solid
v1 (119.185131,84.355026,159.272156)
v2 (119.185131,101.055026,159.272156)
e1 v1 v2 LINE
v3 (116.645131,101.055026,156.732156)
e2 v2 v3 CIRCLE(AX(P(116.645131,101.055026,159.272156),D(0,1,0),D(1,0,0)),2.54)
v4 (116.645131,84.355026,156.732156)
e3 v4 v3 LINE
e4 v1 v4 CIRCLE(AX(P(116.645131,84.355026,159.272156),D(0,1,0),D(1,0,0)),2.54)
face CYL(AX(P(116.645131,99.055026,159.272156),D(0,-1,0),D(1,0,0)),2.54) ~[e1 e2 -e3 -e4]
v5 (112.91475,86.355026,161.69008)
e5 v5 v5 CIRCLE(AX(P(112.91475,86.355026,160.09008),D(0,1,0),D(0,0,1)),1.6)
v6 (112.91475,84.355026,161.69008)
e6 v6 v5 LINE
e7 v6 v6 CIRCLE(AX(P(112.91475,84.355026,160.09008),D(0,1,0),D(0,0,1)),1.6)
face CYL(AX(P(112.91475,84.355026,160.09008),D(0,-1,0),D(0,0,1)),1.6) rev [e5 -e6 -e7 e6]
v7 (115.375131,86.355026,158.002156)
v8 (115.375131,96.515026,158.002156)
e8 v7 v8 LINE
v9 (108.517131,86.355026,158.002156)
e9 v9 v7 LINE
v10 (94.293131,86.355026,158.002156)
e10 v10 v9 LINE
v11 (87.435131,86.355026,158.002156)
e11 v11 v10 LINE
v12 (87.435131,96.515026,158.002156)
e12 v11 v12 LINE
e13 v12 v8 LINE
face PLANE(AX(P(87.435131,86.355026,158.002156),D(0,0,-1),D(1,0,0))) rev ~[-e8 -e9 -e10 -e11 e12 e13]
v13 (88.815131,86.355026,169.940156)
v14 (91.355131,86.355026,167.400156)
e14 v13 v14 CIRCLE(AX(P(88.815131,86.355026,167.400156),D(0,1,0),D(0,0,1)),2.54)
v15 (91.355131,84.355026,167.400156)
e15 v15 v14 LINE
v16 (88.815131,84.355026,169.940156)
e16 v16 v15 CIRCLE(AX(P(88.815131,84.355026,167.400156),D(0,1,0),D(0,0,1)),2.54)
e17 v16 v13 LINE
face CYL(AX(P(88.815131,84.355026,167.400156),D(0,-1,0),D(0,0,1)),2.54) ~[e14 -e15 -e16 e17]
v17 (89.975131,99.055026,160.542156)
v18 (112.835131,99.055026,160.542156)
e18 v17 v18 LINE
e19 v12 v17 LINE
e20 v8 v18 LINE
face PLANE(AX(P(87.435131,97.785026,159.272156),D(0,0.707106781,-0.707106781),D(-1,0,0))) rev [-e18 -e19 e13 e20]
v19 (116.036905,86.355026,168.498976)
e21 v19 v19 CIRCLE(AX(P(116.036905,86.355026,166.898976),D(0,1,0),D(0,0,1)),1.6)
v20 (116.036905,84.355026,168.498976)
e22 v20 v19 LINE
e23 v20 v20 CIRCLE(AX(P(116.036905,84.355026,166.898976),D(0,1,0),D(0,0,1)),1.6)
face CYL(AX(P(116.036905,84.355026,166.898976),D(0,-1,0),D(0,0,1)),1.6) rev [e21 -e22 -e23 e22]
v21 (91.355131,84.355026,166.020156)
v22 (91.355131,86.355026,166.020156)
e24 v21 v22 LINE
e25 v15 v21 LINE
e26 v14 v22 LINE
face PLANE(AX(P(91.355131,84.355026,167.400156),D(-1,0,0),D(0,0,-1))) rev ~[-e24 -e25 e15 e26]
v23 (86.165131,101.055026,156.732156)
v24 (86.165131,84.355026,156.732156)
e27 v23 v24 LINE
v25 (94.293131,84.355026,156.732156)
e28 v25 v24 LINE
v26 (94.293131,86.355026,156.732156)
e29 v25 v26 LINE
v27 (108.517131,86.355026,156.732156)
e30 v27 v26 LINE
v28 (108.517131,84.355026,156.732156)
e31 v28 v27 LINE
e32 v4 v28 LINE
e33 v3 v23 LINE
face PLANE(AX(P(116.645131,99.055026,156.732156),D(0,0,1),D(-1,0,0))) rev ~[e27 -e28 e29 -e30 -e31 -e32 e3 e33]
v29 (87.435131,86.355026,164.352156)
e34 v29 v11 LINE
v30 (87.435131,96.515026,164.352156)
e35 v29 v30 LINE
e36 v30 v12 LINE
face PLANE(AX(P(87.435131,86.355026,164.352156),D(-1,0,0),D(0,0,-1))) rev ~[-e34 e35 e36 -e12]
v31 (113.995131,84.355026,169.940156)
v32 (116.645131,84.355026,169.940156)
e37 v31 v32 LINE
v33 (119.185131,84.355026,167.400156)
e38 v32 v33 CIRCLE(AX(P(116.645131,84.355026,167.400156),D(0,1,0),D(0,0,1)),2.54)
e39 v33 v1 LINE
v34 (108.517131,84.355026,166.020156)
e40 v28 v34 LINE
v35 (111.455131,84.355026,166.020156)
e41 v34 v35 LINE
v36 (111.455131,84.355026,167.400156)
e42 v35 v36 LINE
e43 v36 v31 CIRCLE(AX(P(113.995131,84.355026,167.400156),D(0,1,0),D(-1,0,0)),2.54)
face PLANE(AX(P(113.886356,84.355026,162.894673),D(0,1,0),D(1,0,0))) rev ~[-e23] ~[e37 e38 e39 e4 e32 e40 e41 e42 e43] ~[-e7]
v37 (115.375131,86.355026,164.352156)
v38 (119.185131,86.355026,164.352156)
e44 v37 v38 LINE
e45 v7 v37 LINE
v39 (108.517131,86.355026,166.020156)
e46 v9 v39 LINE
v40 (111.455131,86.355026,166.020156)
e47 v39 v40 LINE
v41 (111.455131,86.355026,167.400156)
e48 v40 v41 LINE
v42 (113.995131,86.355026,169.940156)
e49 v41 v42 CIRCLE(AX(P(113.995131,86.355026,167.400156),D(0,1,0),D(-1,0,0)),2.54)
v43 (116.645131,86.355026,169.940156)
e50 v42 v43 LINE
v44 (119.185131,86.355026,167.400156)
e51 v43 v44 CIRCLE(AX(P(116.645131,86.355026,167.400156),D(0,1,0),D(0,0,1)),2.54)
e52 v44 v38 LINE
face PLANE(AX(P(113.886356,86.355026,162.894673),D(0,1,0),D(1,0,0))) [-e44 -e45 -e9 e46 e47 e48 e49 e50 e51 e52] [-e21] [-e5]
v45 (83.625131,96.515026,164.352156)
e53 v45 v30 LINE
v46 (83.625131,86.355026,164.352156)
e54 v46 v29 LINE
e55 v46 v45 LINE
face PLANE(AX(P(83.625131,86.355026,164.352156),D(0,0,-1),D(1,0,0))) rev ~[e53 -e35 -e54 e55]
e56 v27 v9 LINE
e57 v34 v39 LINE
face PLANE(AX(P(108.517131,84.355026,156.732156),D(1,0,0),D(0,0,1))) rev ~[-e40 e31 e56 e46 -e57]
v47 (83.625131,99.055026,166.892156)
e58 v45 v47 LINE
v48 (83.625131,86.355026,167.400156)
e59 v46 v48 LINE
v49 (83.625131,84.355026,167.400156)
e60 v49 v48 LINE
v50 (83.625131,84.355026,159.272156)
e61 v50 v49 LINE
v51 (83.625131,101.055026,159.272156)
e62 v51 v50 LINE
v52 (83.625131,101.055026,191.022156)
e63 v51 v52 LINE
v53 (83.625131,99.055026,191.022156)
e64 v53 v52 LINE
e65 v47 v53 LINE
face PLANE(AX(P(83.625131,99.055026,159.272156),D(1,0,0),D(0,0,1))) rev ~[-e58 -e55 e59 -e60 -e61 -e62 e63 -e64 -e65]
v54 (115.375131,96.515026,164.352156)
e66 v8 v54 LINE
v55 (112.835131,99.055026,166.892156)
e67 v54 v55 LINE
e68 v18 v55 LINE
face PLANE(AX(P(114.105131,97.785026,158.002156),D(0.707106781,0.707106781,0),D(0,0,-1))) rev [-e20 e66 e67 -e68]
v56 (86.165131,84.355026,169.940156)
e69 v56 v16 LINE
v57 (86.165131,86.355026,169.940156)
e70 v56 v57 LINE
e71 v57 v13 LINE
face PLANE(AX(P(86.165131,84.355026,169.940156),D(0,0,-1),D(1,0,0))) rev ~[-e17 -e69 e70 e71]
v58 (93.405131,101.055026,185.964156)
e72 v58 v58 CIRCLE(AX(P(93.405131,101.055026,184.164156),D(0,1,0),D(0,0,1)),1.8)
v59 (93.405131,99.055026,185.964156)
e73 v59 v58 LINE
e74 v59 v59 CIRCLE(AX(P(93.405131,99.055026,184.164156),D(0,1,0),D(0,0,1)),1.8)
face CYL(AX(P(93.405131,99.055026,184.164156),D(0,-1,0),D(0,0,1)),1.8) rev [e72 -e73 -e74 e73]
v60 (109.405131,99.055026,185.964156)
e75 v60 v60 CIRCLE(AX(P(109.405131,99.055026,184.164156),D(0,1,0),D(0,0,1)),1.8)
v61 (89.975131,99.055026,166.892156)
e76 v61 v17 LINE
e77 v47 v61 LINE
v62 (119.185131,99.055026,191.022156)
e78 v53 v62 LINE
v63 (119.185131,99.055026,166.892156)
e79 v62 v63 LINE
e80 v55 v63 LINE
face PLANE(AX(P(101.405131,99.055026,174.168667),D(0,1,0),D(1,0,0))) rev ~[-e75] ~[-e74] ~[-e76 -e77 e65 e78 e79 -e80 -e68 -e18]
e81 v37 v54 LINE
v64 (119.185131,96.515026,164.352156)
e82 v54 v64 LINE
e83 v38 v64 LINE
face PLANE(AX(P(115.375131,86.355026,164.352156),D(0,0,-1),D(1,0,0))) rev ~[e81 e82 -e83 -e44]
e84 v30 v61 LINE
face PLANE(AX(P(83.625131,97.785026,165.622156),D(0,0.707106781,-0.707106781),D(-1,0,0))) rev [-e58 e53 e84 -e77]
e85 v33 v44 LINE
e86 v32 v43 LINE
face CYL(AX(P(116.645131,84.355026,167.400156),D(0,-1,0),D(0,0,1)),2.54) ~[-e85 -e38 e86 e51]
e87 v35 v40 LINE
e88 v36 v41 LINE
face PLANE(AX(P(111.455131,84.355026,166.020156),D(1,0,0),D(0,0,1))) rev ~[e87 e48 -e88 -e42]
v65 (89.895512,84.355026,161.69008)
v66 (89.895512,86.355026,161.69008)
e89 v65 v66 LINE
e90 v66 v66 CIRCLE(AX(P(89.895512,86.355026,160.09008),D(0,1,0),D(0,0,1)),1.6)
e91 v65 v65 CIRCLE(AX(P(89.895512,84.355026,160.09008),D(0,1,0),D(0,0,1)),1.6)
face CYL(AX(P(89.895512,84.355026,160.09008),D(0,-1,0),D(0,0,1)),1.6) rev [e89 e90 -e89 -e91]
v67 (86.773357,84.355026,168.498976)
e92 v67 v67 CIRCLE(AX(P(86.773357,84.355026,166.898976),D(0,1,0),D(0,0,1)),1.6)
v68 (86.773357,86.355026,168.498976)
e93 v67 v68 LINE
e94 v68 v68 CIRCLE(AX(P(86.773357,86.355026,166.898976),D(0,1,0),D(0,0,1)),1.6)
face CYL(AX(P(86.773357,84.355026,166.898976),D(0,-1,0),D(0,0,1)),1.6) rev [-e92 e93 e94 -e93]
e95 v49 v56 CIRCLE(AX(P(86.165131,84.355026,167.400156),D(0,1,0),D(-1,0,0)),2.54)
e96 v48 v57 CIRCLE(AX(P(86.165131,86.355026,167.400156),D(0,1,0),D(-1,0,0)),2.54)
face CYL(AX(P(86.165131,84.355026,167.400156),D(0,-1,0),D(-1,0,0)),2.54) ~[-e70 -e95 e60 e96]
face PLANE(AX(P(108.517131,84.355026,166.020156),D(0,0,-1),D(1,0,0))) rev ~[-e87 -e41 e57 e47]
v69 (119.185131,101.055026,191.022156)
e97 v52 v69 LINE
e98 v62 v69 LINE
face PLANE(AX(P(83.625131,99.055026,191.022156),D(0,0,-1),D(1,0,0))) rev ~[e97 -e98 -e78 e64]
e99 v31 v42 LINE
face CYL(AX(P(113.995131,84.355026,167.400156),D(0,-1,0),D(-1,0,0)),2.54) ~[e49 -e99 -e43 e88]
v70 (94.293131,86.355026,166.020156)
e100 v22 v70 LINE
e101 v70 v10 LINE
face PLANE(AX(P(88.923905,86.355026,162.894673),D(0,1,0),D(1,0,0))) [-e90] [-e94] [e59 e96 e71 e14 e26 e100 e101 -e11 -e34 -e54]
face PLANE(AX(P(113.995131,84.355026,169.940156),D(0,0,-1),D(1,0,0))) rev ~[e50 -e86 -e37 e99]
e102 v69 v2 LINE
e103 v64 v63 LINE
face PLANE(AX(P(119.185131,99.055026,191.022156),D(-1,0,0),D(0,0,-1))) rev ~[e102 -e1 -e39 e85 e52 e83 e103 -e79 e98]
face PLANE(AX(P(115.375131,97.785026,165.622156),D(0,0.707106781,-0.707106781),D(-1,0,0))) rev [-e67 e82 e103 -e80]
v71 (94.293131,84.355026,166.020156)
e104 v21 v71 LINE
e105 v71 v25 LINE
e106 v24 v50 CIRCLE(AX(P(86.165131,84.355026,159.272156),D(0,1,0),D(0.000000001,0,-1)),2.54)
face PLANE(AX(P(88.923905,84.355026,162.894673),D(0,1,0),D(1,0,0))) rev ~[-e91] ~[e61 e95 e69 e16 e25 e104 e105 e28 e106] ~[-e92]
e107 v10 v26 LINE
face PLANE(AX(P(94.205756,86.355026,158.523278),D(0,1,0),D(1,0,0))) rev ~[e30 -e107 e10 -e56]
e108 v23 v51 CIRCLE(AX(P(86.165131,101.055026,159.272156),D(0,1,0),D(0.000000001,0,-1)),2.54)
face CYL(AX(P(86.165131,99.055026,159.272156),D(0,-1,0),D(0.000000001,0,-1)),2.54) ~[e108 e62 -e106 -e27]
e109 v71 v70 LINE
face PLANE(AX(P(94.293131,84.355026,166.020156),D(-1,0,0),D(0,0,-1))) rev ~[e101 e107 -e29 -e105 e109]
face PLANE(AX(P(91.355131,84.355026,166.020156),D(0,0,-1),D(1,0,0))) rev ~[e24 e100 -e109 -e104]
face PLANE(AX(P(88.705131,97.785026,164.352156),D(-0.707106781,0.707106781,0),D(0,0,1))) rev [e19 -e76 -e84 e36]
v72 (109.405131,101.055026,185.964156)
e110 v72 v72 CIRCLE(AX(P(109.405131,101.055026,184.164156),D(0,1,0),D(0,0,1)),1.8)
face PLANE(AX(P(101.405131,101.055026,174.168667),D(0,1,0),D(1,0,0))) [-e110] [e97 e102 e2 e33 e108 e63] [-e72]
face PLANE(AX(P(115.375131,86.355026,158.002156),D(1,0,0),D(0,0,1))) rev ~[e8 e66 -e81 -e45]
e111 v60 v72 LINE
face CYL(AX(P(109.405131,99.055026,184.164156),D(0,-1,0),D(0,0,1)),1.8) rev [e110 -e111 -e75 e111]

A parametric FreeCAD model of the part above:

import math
import FreeCAD as App
import Part
import Sketcher
Q = App.Units.Quantity


def edges_at(feature, points):
    """Names of the edges that pass closest to the given points."""
    edges = feature.Shape.Edges
    near = lambda p: min(range(len(edges)), key=lambda i: edges[i].distToShape(Part.Vertex(*p))[0])
    return sorted({f"Edge{near(p) + 1}" for p in points})

doc = App.newDocument("Part")
body = doc.addObject("PartDesign::Body", "Body")

# Sketch on XZ plane
sketch1 = doc.addObject("Sketcher::SketchObject", "Sketch")
body.addObject(sketch1)
sketch1.AttachmentSupport = (doc.XZ_Plane, [""])
sketch1.MapMode = "FlatFace"
sketch1.AttachmentOffset = App.Placement(App.Vector(0, 0, -84.355026), App.Rotation())
sketch1.addGeometry([
    Part.LineSegment(App.Vector(86.165131, 169.940156, 0), App.Vector(88.815131, 169.940156, 0)),  # 0
    Part.ArcOfCircle(Part.Circle(App.Vector(88.815131, 167.400156, 0), App.Vector(0, 0, 1), 2.54), math.radians(0), math.radians(90)),  # 1
    Part.LineSegment(App.Vector(91.355131, 167.400156, 0), App.Vector(91.355131, 166.020156, 0)),  # 2
    Part.LineSegment(App.Vector(91.355131, 166.020156, 0), App.Vector(94.293131, 166.020156, 0)),  # 3
    Part.LineSegment(App.Vector(94.293131, 166.020156, 0), App.Vector(94.293131, 156.732156, 0)),  # 4
    Part.LineSegment(App.Vector(94.293131, 156.732156, 0), App.Vector(86.165131, 156.732156, 0)),  # 5
    Part.ArcOfCircle(Part.Circle(App.Vector(86.165131, 159.272156, 0), App.Vector(0, 0, 1), 2.54), math.radians(180), math.radians(270)),  # 6
    Part.LineSegment(App.Vector(83.625131, 159.272156, 0), App.Vector(83.625131, 167.400156, 0)),  # 7
    Part.ArcOfCircle(Part.Circle(App.Vector(86.165131, 167.400156, 0), App.Vector(0, 0, 1), 2.54), math.radians(90), math.radians(180)),  # 8
    Part.Circle(App.Vector(86.773357, 166.898976, 0), App.Vector(0, 0, 1), 1.6),  # 9
    Part.Circle(App.Vector(89.895512, 160.09008, 0), App.Vector(0, 0, 1), 1.6),  # 10
], False)
sketch1.addConstraint([
    Sketcher.Constraint("Tangent", 0, 2, 1, 2),
    Sketcher.Constraint("Tangent", 1, 1, 2, 1),
    Sketcher.Constraint("Coincident", 2, 2, 3, 1),
    Sketcher.Constraint("Coincident", 3, 2, 4, 1),
    Sketcher.Constraint("Coincident", 4, 2, 5, 1),
    Sketcher.Constraint("Tangent", 5, 2, 6, 2),
    Sketcher.Constraint("Tangent", 6, 1, 7, 1),
    Sketcher.Constraint("Tangent", 7, 2, 8, 2),
    Sketcher.Constraint("Tangent", 8, 1, 0, 1),
    Sketcher.Constraint("Horizontal", 0),
    Sketcher.Constraint("Vertical", 2),
    Sketcher.Constraint("Horizontal", 3),
    Sketcher.Constraint("Vertical", 4),
    Sketcher.Constraint("Horizontal", 5),
    Sketcher.Constraint("Vertical", 7),
    Sketcher.Constraint("Equal", 1, 6),
    Sketcher.Constraint("Equal", 6, 8),
    Sketcher.Constraint("Equal", 9, 10),
    Sketcher.Constraint("Equal", 5, 7),
    Sketcher.Constraint("Radius", 1, Q("0.1 in")),
    Sketcher.Constraint("DistanceX", 5, 2, 5, 1, Q("0.32 in")),
    Sketcher.Constraint("Diameter", 9, 3.2),
    Sketcher.Constraint("DistanceX", 0, 1, 0, 2, 2.65),
    Sketcher.Constraint("DistanceY", 2, 2, 2, 1, 1.38),
    Sketcher.Constraint("DistanceX", -1, 1, 1, 3, 88.815131),
    Sketcher.Constraint("DistanceX", -1, 1, 10, 3, 89.895512),
    Sketcher.Constraint("DistanceY", -1, 1, 10, 3, 160.09008),
    Sketcher.Constraint("DistanceY", 9, 3, 8, 3, 0.50118),
    Sketcher.Constraint("DistanceY", -1, 1, 1, 3, 167.400156),
    Sketcher.Constraint("DistanceX", -1, 1, 9, 3, 86.773357),
])
pad1 = doc.addObject("PartDesign::Pad", "Pad")
body.addObject(pad1)
pad1.Profile = sketch1
pad1.Length = 2
pad1.Reversed = True
body2 = doc.addObject("PartDesign::Body", "Body001")

# Sketch on XZ plane
sketch2 = doc.addObject("Sketcher::SketchObject", "Sketch001")
body2.addObject(sketch2)
sketch2.AttachmentSupport = (doc.getObject("XZ_Plane001"), [""])
sketch2.MapMode = "FlatFace"
sketch2.AttachmentOffset = App.Placement(App.Vector(0, 0, -84.355026), App.Rotation())
sketch2.addGeometry([
    Part.LineSegment(App.Vector(113.995131, 169.940156, 0), App.Vector(116.645131, 169.940156, 0)),  # 0
    Part.ArcOfCircle(Part.Circle(App.Vector(116.645131, 167.400156, 0), App.Vector(0, 0, 1), 2.54), math.radians(0), math.radians(90)),  # 1
    Part.LineSegment(App.Vector(119.185131, 167.400156, 0), App.Vector(119.185131, 159.272156, 0)),  # 2
    Part.ArcOfCircle(Part.Circle(App.Vector(116.645131, 159.272156, 0), App.Vector(0, 0, 1), 2.54), math.radians(-90), math.radians(0)),  # 3
    Part.LineSegment(App.Vector(116.645131, 156.732156, 0), App.Vector(108.517131, 156.732156, 0)),  # 4
    Part.LineSegment(App.Vector(108.517131, 156.732156, 0), App.Vector(108.517131, 166.020156, 0)),  # 5
    Part.LineSegment(App.Vector(108.517131, 166.020156, 0), App.Vector(111.455131, 166.020156, 0)),  # 6
    Part.LineSegment(App.Vector(111.455131, 166.020156, 0), App.Vector(111.455131, 167.400156, 0)),  # 7
    Part.ArcOfCircle(Part.Circle(App.Vector(113.995131, 167.400156, 0), App.Vector(0, 0, 1), 2.54), math.radians(90), math.radians(180)),  # 8
    Part.Circle(App.Vector(116.036905, 166.898976, 0), App.Vector(0, 0, 1), 1.6),  # 9
    Part.Circle(App.Vector(112.91475, 160.09008, 0), App.Vector(0, 0, 1), 1.6),  # 10
], False)
sketch2.addConstraint([
    Sketcher.Constraint("Tangent", 0, 2, 1, 2),
    Sketcher.Constraint("Tangent", 1, 1, 2, 1),
    Sketcher.Constraint("Tangent", 2, 2, 3, 2),
    Sketcher.Constraint("Tangent", 3, 1, 4, 1),
    Sketcher.Constraint("Coincident", 4, 2, 5, 1),
    Sketcher.Constraint("Coincident", 5, 2, 6, 1),
    Sketcher.Constraint("Coincident", 6, 2, 7, 1),
    Sketcher.Constraint("Tangent", 7, 2, 8, 2),
    Sketcher.Constraint("Tangent", 8, 1, 0, 1),
    Sketcher.Constraint("Horizontal", 0),
    Sketcher.Constraint("Vertical", 2),
    Sketcher.Constraint("Horizontal", 4),
    Sketcher.Constraint("Vertical", 5),
    Sketcher.Constraint("Horizontal", 6),
    Sketcher.Constraint("Vertical", 7),
    Sketcher.Constraint("Equal", 1, 3),
    Sketcher.Constraint("Equal", 3, 8),
    Sketcher.Constraint("Equal", 9, 10),
    Sketcher.Constraint("Equal", 4, 2),
    Sketcher.Constraint("Radius", 1, Q("0.1 in")),
    Sketcher.Constraint("DistanceX", 4, 2, 4, 1, Q("0.32 in")),
    Sketcher.Constraint("Diameter", 9, 3.2),
    Sketcher.Constraint("DistanceX", 0, 1, 0, 2, 2.65),
    Sketcher.Constraint("DistanceY", 5, 1, 5, 2, 9.288),
    Sketcher.Constraint("DistanceX", -1, 1, 1, 3, 116.645131),
    Sketcher.Constraint("DistanceX", -1, 1, 10, 3, 112.91475),
    Sketcher.Constraint("DistanceY", -1, 1, 10, 3, 160.09008),
    Sketcher.Constraint("DistanceY", 9, 3, 1, 3, 0.50118),
    Sketcher.Constraint("DistanceY", -1, 1, 1, 3, 167.400156),
    Sketcher.Constraint("DistanceX", -1, 1, 9, 3, 116.036905),
])
pad2 = doc.addObject("PartDesign::Pad", "Pad001")
body2.addObject(pad2)
pad2.Profile = sketch2
pad2.Length = 2
pad2.Reversed = True
body.AllowCompound = True
doc.recompute()

boolean = doc.addObject("PartDesign::Boolean", "Boolean")
body.addObject(boolean)
boolean.Type = "Fuse"
boolean.addObjects([body2])

# Sketch on XZ plane
sketch3 = doc.addObject("Sketcher::SketchObject", "Sketch002")
body.addObject(sketch3)
sketch3.AttachmentSupport = (doc.XZ_Plane, [""])
sketch3.MapMode = "FlatFace"
sketch3.AttachmentOffset = App.Placement(App.Vector(0, 0, -86.355026), App.Rotation())
sketch3.addGeometry([
    Part.ArcOfCircle(Part.Circle(App.Vector(86.165131, 159.272156, 0), App.Vector(0, 0, 1), 2.54), math.radians(180), math.radians(270)),  # 0
    Part.LineSegment(App.Vector(83.625131, 159.272156, 0), App.Vector(83.625131, 164.352156, 0)),  # 1
    Part.LineSegment(App.Vector(83.625131, 164.352156, 0), App.Vector(87.435131, 164.352156, 0)),  # 2
    Part.LineSegment(App.Vector(87.435131, 164.352156, 0), App.Vector(87.435131, 158.002156, 0)),  # 3
    Part.LineSegment(App.Vector(87.435131, 158.002156, 0), App.Vector(115.375131, 158.002156, 0)),  # 4
    Part.LineSegment(App.Vector(115.375131, 158.002156, 0), App.Vector(115.375131, 164.352156, 0)),  # 5
    Part.LineSegment(App.Vector(115.375131, 164.352156, 0), App.Vector(119.185131, 164.352156, 0)),  # 6
    Part.LineSegment(App.Vector(119.185131, 164.352156, 0), App.Vector(119.185131, 159.272156, 0)),  # 7
    Part.ArcOfCircle(Part.Circle(App.Vector(116.645131, 159.272156, 0), App.Vector(0, 0, 1), 2.54), math.radians(-90), math.radians(0)),  # 8
    Part.LineSegment(App.Vector(116.645131, 156.732156, 0), App.Vector(86.165131, 156.732156, 0)),  # 9
], False)
sketch3.addConstraint([
    Sketcher.Constraint("Tangent", 0, 1, 1, 1),
    Sketcher.Constraint("Coincident", 1, 2, 2, 1),
    Sketcher.Constraint("Coincident", 2, 2, 3, 1),
    Sketcher.Constraint("Coincident", 3, 2, 4, 1),
    Sketcher.Constraint("Coincident", 4, 2, 5, 1),
    Sketcher.Constraint("Coincident", 5, 2, 6, 1),
    Sketcher.Constraint("Coincident", 6, 2, 7, 1),
    Sketcher.Constraint("Tangent", 7, 2, 8, 2),
    Sketcher.Constraint("Tangent", 8, 1, 9, 1),
    Sketcher.Constraint("Tangent", 9, 2, 0, 2),
    Sketcher.Constraint("Vertical", 1),
    Sketcher.Constraint("Horizontal", 2),
    Sketcher.Constraint("Vertical", 3),
    Sketcher.Constraint("Horizontal", 4),
    Sketcher.Constraint("Vertical", 5),
    Sketcher.Constraint("Horizontal", 6),
    Sketcher.Constraint("Vertical", 7),
    Sketcher.Constraint("Horizontal", 9),
    Sketcher.Constraint("Equal", 0, 8),
    Sketcher.Constraint("Horizontal", 2, 2, 5, 2),
    Sketcher.Constraint("Equal", 2, 6),
    Sketcher.Constraint("Radius", 0, Q("0.1 in")),
    Sketcher.Constraint("DistanceX", 4, 1, 4, 2, Q("1.1 in")),
    Sketcher.Constraint("DistanceX", 9, 2, 9, 1, Q("1.2 in")),
    Sketcher.Constraint("DistanceY", 1, 1, 1, 2, Q("0.2 in")),
    Sketcher.Constraint("DistanceY", 3, 2, 3, 1, Q("0.25 in")),
    Sketcher.Constraint("DistanceX", -1, 1, 0, 3, 86.165131),
    Sketcher.Constraint("DistanceY", -1, 1, 0, 3, 159.272156),
])
pad3 = doc.addObject("PartDesign::Pad", "Pad002")
body.addObject(pad3)
pad3.Profile = sketch3
pad3.Length = Q("0.5 in")
pad3.Reversed = True

# Sketch on XZ plane
sketch4 = doc.addObject("Sketcher::SketchObject", "Sketch003")
body.addObject(sketch4)
sketch4.AttachmentSupport = (doc.XZ_Plane, [""])
sketch4.MapMode = "FlatFace"
sketch4.AttachmentOffset = App.Placement(App.Vector(0, 0, -99.055026), App.Rotation())
sketch4.addGeometry([
    Part.LineSegment(App.Vector(83.625131, 191.022156, 0), App.Vector(119.185131, 191.022156, 0)),  # 0
    Part.LineSegment(App.Vector(119.185131, 191.022156, 0), App.Vector(119.185131, 159.272156, 0)),  # 1
    Part.ArcOfCircle(Part.Circle(App.Vector(116.645131, 159.272156, 0), App.Vector(0, 0, 1), 2.54), math.radians(-90), math.radians(0)),  # 2
    Part.LineSegment(App.Vector(116.645131, 156.732156, 0), App.Vector(86.165131, 156.732156, 0)),  # 3
    Part.ArcOfCircle(Part.Circle(App.Vector(86.165131, 159.272156, 0), App.Vector(0, 0, 1), 2.54), math.radians(180), math.radians(270)),  # 4
    Part.LineSegment(App.Vector(83.625131, 159.272156, 0), App.Vector(83.625131, 191.022156, 0)),  # 5
    Part.Circle(App.Vector(93.405131, 184.164156, 0), App.Vector(0, 0, 1), 1.8),  # 6
    Part.Circle(App.Vector(109.405131, 184.164156, 0), App.Vector(0, 0, 1), 1.8),  # 7
], False)
sketch4.addConstraint([
    Sketcher.Constraint("Coincident", 0, 2, 1, 1),
    Sketcher.Constraint("Tangent", 1, 2, 2, 2),
    Sketcher.Constraint("Tangent", 2, 1, 3, 1),
    Sketcher.Constraint("Tangent", 3, 2, 4, 2),
    Sketcher.Constraint("Tangent", 4, 1, 5, 1),
    Sketcher.Constraint("Coincident", 5, 2, 0, 1),
    Sketcher.Constraint("Horizontal", 0),
    Sketcher.Constraint("Vertical", 1),
    Sketcher.Constraint("Horizontal", 3),
    Sketcher.Constraint("Vertical", 5),
    Sketcher.Constraint("Equal", 2, 4),
    Sketcher.Constraint("Equal", 6, 7),
    Sketcher.Constraint("Horizontal", 6, 3, 7, 3),
    Sketcher.Constraint("Radius", 2, Q("0.1 in")),
    Sketcher.Constraint("DistanceX", 0, 1, 0, 2, Q("1.4 in")),
    Sketcher.Constraint("DistanceY", 1, 2, 1, 1, Q("1.25 in")),
    Sketcher.Constraint("Diameter", 6, 3.6),
    Sketcher.Constraint("DistanceY", 4, 3, 6, 3, Q("0.98 in")),
    Sketcher.Constraint("DistanceX", 4, 3, 6, 3, 7.24),
    Sketcher.Constraint("DistanceX", 6, 3, 7, 3, 16.0),
    Sketcher.Constraint("DistanceX", -1, 1, 2, 3, 116.645131),
    Sketcher.Constraint("DistanceY", -1, 1, 2, 3, 159.272156),
])
pad4 = doc.addObject("PartDesign::Pad", "Pad003")
body.addObject(pad4)
pad4.Profile = sketch4
pad4.Length = 2
pad4.Reversed = True
doc.recompute()

chamfer = doc.addObject("PartDesign::Chamfer", "Chamfer")
body.addObject(chamfer)
chamfer.Base = (pad4, edges_at(pad4, [
    (85.53, 99.055, 164.352),
    (87.435, 99.055, 161.177),
    (101.405, 99.055, 158.002),
    (115.375, 99.055, 161.177),
    (117.28, 99.055, 164.352),
]))
chamfer.Size = Q("0.1 in")

doc.recompute()
